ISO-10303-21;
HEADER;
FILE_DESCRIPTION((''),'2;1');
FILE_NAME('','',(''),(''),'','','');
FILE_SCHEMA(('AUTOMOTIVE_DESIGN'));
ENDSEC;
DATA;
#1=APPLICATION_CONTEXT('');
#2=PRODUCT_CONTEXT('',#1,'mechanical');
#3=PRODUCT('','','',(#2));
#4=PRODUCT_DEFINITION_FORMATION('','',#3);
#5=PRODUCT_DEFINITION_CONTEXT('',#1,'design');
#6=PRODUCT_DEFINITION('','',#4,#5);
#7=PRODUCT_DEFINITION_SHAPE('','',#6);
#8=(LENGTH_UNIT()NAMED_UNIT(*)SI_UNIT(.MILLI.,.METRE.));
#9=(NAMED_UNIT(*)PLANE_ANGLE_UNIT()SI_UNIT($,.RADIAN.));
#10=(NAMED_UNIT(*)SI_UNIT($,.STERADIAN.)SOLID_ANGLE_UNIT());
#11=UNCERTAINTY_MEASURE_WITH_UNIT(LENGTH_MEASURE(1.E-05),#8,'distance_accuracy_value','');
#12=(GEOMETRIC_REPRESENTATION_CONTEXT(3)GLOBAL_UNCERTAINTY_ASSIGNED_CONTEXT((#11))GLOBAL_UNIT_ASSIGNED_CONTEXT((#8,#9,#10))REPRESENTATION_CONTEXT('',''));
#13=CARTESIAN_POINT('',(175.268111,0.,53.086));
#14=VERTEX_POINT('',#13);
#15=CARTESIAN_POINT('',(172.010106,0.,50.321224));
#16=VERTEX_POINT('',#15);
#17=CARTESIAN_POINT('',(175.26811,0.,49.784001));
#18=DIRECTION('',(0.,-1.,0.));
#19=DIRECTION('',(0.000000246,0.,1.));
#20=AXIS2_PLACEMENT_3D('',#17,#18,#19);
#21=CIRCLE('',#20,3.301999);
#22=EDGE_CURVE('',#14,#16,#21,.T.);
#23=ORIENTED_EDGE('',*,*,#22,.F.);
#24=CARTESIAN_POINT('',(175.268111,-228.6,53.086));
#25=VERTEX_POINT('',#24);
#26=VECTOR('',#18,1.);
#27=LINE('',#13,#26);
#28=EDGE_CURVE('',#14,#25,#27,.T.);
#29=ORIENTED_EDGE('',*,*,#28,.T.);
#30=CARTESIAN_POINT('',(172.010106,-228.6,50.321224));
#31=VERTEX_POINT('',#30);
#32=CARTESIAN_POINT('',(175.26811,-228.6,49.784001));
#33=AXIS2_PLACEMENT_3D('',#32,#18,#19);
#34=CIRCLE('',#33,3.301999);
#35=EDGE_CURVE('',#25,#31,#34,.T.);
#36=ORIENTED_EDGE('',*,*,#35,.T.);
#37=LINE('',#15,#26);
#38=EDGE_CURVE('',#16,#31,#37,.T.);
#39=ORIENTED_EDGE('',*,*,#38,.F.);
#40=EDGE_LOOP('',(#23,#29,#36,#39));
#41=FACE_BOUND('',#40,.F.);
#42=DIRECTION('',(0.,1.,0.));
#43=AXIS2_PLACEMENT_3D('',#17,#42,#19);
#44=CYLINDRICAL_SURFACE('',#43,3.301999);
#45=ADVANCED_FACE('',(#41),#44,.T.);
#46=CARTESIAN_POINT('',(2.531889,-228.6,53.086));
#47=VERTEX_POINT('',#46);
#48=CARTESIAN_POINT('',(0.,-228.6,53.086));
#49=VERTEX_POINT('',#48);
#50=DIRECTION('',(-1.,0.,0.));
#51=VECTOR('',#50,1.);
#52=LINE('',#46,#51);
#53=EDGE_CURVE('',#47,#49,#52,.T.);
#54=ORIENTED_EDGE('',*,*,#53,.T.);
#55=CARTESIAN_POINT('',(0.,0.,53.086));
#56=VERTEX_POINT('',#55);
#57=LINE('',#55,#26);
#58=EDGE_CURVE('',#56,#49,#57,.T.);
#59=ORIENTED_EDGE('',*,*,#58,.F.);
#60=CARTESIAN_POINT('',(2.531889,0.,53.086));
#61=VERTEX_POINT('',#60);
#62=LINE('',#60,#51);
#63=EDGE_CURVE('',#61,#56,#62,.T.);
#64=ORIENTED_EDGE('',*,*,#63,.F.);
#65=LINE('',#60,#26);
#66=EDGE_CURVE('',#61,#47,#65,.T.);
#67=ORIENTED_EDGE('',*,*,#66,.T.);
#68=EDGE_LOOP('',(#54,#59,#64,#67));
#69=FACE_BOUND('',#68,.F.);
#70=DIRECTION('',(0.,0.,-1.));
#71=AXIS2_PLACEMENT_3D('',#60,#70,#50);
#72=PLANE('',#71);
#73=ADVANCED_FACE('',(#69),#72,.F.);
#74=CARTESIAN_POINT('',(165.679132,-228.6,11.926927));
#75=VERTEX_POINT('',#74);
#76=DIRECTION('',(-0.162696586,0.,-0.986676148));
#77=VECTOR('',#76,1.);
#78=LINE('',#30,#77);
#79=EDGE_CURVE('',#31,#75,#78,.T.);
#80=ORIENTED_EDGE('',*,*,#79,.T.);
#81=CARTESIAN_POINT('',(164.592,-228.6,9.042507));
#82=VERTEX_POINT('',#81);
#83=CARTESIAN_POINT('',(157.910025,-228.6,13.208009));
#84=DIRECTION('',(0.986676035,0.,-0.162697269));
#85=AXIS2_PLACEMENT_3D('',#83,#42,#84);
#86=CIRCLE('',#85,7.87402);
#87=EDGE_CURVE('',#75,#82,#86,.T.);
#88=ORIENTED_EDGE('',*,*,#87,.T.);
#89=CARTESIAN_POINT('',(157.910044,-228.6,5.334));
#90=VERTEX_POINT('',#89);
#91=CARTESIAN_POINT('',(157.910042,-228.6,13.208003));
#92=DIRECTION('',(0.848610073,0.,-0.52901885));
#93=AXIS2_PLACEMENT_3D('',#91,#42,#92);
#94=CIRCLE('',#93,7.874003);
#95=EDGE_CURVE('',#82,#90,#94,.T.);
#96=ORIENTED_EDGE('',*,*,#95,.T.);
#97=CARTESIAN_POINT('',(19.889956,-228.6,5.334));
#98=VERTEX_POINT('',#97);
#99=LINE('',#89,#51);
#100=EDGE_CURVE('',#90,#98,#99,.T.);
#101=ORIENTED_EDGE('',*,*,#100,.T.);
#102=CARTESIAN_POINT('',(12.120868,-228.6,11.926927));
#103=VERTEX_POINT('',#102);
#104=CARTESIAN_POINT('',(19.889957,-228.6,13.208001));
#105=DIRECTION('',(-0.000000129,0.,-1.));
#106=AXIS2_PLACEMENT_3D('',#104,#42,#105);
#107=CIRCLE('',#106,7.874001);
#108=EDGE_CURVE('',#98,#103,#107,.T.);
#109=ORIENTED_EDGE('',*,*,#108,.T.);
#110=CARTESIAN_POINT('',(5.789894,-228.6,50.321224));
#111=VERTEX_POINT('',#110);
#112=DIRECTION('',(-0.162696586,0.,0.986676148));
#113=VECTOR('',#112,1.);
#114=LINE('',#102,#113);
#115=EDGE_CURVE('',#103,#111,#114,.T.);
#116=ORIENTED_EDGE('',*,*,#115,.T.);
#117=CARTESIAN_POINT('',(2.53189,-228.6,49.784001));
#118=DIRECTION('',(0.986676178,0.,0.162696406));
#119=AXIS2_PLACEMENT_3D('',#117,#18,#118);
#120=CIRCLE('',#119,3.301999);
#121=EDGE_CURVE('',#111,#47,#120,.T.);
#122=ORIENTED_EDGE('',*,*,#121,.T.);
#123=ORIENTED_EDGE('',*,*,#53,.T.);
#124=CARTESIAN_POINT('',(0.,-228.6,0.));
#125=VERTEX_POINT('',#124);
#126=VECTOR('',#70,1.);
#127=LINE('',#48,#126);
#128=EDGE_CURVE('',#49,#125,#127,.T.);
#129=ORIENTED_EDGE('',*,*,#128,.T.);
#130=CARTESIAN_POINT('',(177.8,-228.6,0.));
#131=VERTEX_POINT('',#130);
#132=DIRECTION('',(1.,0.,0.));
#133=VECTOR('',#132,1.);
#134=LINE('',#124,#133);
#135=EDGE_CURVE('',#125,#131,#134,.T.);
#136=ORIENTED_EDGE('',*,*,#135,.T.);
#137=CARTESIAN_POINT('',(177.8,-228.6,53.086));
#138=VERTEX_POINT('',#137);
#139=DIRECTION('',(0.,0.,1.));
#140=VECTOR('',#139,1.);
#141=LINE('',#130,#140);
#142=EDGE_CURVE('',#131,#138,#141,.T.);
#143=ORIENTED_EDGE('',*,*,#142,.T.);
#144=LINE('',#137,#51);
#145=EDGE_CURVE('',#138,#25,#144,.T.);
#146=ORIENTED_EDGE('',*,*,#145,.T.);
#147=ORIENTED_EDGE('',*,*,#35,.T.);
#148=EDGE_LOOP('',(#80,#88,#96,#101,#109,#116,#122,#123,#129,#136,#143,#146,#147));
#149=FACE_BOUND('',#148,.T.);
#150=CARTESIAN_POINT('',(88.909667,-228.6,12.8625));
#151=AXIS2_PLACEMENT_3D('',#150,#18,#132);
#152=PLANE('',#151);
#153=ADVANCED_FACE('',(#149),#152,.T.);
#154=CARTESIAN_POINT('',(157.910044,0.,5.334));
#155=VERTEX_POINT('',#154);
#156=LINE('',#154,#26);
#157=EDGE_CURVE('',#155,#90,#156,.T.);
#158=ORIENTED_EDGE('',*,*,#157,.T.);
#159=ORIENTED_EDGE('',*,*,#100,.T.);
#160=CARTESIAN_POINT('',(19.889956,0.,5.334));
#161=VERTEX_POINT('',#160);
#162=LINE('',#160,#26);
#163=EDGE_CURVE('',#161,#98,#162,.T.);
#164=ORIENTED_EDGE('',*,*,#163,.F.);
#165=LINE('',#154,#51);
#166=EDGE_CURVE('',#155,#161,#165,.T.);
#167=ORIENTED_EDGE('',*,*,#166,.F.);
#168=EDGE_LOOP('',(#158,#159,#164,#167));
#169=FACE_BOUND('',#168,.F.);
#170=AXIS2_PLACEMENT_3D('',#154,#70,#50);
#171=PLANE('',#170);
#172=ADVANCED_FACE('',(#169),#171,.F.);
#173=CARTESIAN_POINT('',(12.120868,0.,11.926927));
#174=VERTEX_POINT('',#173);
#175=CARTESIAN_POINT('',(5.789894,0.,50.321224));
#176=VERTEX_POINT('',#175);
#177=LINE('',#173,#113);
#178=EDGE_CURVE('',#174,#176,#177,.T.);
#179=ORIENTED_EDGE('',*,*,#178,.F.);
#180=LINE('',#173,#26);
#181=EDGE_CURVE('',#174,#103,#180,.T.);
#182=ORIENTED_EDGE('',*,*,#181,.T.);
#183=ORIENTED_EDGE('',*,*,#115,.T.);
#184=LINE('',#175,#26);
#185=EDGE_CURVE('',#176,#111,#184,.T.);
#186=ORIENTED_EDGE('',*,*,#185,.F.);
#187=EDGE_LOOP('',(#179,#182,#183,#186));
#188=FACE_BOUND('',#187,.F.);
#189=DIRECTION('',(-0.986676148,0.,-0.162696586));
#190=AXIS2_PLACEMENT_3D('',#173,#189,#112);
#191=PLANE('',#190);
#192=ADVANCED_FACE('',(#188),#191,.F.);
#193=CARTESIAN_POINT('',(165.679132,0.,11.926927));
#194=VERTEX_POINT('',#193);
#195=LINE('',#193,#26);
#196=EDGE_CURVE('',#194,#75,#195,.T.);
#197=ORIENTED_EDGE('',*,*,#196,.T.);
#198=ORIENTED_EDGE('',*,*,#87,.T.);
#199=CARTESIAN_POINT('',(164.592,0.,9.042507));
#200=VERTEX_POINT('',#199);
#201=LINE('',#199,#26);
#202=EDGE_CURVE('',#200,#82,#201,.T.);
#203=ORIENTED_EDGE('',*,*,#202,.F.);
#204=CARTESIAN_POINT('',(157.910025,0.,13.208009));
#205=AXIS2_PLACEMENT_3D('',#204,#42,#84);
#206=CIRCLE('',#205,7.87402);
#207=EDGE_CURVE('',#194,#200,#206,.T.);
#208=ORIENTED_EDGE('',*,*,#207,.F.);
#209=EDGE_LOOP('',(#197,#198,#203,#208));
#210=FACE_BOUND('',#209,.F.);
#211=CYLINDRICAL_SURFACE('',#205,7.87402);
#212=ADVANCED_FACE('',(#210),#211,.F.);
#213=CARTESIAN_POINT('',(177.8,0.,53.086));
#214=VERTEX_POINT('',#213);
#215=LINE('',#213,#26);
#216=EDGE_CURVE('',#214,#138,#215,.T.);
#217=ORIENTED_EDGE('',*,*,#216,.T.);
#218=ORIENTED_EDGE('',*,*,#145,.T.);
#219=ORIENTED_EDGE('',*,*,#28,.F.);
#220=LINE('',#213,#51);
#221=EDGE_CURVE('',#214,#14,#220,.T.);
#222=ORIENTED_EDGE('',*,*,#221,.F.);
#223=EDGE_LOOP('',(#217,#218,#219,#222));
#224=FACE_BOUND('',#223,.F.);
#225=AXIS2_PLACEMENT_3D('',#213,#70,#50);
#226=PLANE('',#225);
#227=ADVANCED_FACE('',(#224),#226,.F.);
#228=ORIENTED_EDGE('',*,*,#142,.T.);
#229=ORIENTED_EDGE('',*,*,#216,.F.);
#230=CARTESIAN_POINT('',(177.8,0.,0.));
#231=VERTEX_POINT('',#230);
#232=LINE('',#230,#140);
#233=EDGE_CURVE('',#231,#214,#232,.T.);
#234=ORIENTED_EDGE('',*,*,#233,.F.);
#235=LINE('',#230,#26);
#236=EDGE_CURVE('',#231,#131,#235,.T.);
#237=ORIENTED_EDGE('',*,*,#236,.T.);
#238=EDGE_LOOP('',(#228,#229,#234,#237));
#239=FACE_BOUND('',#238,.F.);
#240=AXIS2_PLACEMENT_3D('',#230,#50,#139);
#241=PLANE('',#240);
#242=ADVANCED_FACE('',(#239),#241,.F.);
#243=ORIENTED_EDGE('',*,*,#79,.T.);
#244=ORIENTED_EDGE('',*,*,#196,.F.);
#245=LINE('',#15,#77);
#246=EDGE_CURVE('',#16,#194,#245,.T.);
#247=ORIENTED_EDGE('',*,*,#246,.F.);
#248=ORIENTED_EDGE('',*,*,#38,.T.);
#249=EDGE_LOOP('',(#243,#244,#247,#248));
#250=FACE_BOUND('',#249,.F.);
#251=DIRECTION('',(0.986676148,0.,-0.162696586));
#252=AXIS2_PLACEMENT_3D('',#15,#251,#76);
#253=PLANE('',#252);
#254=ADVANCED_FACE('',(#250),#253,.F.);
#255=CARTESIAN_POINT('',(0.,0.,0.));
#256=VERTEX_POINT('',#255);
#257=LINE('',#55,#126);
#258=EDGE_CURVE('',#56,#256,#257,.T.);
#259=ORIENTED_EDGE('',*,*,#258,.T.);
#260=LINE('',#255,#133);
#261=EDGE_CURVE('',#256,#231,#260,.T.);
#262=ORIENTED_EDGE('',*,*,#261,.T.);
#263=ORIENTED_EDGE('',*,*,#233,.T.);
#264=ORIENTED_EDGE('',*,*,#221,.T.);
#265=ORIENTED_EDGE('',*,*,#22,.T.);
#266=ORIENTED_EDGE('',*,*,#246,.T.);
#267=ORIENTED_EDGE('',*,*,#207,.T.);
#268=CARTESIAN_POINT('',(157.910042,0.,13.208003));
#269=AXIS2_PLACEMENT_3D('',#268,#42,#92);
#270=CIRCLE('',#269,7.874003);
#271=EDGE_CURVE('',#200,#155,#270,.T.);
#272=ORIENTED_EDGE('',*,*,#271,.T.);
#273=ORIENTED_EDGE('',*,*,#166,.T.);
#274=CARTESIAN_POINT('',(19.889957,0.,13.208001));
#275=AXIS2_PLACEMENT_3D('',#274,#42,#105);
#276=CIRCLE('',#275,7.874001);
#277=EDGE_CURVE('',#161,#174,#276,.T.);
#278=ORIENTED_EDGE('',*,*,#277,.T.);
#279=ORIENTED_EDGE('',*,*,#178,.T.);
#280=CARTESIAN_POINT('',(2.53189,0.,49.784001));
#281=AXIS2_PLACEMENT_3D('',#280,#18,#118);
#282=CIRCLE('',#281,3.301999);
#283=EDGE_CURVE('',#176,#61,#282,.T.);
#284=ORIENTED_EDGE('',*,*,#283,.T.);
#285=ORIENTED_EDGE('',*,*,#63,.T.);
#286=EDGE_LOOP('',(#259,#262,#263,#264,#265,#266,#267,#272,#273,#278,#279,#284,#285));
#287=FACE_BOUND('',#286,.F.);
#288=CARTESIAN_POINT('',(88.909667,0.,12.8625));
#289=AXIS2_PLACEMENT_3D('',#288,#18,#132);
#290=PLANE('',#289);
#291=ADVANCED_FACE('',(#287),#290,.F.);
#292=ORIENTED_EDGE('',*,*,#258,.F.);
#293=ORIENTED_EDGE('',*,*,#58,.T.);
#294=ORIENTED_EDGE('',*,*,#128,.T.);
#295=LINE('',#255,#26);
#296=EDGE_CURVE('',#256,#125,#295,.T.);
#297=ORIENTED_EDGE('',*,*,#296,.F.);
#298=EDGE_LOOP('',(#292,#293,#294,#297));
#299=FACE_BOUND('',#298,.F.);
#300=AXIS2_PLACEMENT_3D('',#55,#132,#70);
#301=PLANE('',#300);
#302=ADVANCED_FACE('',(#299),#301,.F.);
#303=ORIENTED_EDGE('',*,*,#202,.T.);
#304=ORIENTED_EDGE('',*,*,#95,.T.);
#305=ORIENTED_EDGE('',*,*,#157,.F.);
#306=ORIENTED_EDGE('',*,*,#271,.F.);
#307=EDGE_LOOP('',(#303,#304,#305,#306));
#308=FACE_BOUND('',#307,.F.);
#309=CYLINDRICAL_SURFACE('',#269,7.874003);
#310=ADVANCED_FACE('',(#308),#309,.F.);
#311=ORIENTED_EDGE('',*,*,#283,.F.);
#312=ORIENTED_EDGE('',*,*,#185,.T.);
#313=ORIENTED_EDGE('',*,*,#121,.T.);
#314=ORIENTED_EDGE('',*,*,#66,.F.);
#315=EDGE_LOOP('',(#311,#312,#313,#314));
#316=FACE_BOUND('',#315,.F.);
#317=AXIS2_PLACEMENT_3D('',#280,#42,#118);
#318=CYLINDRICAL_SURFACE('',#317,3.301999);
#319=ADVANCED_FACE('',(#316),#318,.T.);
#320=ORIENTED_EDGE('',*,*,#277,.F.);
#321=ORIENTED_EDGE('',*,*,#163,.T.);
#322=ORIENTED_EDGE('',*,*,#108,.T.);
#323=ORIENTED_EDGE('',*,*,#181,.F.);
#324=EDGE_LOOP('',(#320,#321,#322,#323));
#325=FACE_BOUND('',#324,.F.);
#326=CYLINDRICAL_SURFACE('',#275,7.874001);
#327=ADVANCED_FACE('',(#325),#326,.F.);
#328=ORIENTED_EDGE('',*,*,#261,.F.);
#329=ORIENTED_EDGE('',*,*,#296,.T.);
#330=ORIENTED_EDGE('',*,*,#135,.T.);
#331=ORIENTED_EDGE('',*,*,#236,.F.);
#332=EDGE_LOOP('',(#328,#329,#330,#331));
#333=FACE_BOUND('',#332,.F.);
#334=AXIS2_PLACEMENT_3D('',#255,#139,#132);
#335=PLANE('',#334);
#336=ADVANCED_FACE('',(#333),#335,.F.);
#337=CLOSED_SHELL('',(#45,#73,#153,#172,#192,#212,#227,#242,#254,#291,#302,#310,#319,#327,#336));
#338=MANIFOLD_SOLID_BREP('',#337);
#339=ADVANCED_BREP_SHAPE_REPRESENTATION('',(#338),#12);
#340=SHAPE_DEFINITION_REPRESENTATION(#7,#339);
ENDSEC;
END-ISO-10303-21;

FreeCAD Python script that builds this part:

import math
import FreeCAD as App
import Part
import Sketcher
from FreeCAD import Vector
Q = App.Units.Quantity

doc = App.newDocument("Part")
body = doc.addObject("PartDesign::Body", "Body")

# Sketch on XZ plane
sketch1 = body.newObject("Sketcher::SketchObject", "Sketch")
sketch1.AttachmentSupport = (doc.getObject("XZ_Plane"), [""])
sketch1.MapMode = "FlatFace"
sketch1.addGeometry([
    Part.LineSegment(Vector(0, 53.086, 0), Vector(0, 0, 0)),  # 0
    Part.LineSegment(Vector(0, 0, 0), Vector(177.8, 0, 0)),  # 1
    Part.LineSegment(Vector(177.8, 0, 0), Vector(177.8, 53.086, 0)),  # 2
    Part.LineSegment(Vector(177.8, 53.086, 0), Vector(175.268111, 53.086, 0)),  # 3
    Part.ArcOfCircle(Part.Circle(Vector(175.26811, 49.784001, 0), Vector(0, 0, 1), 3.301999), math.radians(89.999986), math.radians(170.63656)),  # 4
    Part.LineSegment(Vector(172.010106, 50.321224, 0), Vector(165.679132, 11.926927, 0)),  # 5
    Part.ArcOfCircle(Part.Circle(Vector(157.910025, 13.208009, 0), Vector(0, 0, 1), 7.87402), math.radians(-31.939157), math.radians(-9.36349)),  # 6
    Part.ArcOfCircle(Part.Circle(Vector(157.910042, 13.208003, 0), Vector(0, 0, 1), 7.874003), math.radians(-89.999983), math.radians(-31.939186)),  # 7
    Part.LineSegment(Vector(157.910044, 5.334, 0), Vector(19.889956, 5.334, 0)),  # 8
    Part.ArcOfCircle(Part.Circle(Vector(19.889957, 13.208001, 0), Vector(0, 0, 1), 7.874001), math.radians(-170.636541), math.radians(-90.000007)),  # 9
    Part.LineSegment(Vector(12.120868, 11.926927, 0), Vector(5.789894, 50.321224, 0)),  # 10
    Part.ArcOfCircle(Part.Circle(Vector(2.53189, 49.784001, 0), Vector(0, 0, 1), 3.301999), math.radians(9.36344), math.radians(90.000014)),  # 11
    Part.LineSegment(Vector(2.531889, 53.086, 0), Vector(0, 53.086, 0)),  # 12
], False)
sketch1.addConstraint([
    Sketcher.Constraint("Coincident", 0, 2, 1, 1),
    Sketcher.Constraint("Coincident", 1, 2, 2, 1),
    Sketcher.Constraint("Coincident", 2, 2, 3, 1),
    Sketcher.Constraint("Coincident", 3, 2, 4, 1),
    Sketcher.Constraint("Coincident", 4, 2, 5, 1),
    Sketcher.Constraint("Coincident", 5, 2, 6, 2),
    Sketcher.Constraint("Coincident", 6, 1, 7, 2),
    Sketcher.Constraint("Coincident", 7, 1, 8, 1),
    Sketcher.Constraint("Coincident", 8, 2, 9, 2),
    Sketcher.Constraint("Coincident", 9, 1, 10, 1),
    Sketcher.Constraint("Coincident", 10, 2, 11, 1),
    Sketcher.Constraint("Coincident", 11, 2, 12, 1),
    Sketcher.Constraint("Coincident", 12, 2, 0, 1),
    Sketcher.Constraint("Vertical", 0),
    Sketcher.Constraint("Horizontal", 1),
    Sketcher.Constraint("Vertical", 2),
    Sketcher.Constraint("Horizontal", 3),
    Sketcher.Constraint("Horizontal", 8),
    Sketcher.Constraint("Horizontal", 12),
    Sketcher.Constraint("Coincident", 0, 2, -1, 1),
    Sketcher.Constraint("DistanceX", 1, 1, 1, 2, Q("7 in")),
    Sketcher.Constraint("Radius", 4, Q("0.13 in")),
    Sketcher.Constraint("Radius", 7, Q("0.3100001 in")),
    Sketcher.Constraint("Radius", 9, Q("0.31 in")),
    Sketcher.Constraint("Radius", 11, Q("0.13 in")),
    Sketcher.Constraint("DistanceY", 0, 2, 0, 1, Q("2.09 in")),
    Sketcher.Constraint("DistanceY", 2, 1, 2, 2, Q("2.09 in")),
    Sketcher.Constraint("DistanceY", -1, 1, 7, 3, Q("0.5200001 in")),
    Sketcher.Constraint("DistanceX", -1, 1, 6, 1, Q("6.48 in")),
    Sketcher.Constraint("Radius", 6, 7.87402),
    Sketcher.Constraint("DistanceX", 3, 2, 3, 1, 2.531889),
    Sketcher.Constraint("DistanceX", 12, 2, 12, 1, 2.531889),
    Sketcher.Constraint("DistanceY", 6, 1, 6, 3, 4.165502),
    Sketcher.Constraint("DistanceX", 8, 2, 8, 1, 138.020088),
    Sketcher.Constraint("DistanceX", -1, 1, 4, 3, 175.26811),
    Sketcher.Constraint("DistanceY", -1, 1, 6, 3, 13.208009),
    Sketcher.Constraint("DistanceX", -1, 1, 11, 3, 2.53189),
    Sketcher.Constraint("DistanceX", 9, 3, 6, 3, 138.020068),
    Sketcher.Constraint("DistanceY", 7, 3, 4, 2, 37.113221),
    Sketcher.Constraint("DistanceX", 7, 3, 5, 2, 7.76909),
    Sketcher.Constraint("DistanceX", 7, 1, 5, 2, 7.769088),
    Sketcher.Constraint("DistanceX", 9, 1, 9, 3, 7.769089),
    Sketcher.Constraint("Distance", 10, 38.912765),
])
pad1 = body.newObject("PartDesign::Pad", "Pad")
pad1.Profile = sketch1
pad1.Length = Q("9 in")

doc.recompute()
